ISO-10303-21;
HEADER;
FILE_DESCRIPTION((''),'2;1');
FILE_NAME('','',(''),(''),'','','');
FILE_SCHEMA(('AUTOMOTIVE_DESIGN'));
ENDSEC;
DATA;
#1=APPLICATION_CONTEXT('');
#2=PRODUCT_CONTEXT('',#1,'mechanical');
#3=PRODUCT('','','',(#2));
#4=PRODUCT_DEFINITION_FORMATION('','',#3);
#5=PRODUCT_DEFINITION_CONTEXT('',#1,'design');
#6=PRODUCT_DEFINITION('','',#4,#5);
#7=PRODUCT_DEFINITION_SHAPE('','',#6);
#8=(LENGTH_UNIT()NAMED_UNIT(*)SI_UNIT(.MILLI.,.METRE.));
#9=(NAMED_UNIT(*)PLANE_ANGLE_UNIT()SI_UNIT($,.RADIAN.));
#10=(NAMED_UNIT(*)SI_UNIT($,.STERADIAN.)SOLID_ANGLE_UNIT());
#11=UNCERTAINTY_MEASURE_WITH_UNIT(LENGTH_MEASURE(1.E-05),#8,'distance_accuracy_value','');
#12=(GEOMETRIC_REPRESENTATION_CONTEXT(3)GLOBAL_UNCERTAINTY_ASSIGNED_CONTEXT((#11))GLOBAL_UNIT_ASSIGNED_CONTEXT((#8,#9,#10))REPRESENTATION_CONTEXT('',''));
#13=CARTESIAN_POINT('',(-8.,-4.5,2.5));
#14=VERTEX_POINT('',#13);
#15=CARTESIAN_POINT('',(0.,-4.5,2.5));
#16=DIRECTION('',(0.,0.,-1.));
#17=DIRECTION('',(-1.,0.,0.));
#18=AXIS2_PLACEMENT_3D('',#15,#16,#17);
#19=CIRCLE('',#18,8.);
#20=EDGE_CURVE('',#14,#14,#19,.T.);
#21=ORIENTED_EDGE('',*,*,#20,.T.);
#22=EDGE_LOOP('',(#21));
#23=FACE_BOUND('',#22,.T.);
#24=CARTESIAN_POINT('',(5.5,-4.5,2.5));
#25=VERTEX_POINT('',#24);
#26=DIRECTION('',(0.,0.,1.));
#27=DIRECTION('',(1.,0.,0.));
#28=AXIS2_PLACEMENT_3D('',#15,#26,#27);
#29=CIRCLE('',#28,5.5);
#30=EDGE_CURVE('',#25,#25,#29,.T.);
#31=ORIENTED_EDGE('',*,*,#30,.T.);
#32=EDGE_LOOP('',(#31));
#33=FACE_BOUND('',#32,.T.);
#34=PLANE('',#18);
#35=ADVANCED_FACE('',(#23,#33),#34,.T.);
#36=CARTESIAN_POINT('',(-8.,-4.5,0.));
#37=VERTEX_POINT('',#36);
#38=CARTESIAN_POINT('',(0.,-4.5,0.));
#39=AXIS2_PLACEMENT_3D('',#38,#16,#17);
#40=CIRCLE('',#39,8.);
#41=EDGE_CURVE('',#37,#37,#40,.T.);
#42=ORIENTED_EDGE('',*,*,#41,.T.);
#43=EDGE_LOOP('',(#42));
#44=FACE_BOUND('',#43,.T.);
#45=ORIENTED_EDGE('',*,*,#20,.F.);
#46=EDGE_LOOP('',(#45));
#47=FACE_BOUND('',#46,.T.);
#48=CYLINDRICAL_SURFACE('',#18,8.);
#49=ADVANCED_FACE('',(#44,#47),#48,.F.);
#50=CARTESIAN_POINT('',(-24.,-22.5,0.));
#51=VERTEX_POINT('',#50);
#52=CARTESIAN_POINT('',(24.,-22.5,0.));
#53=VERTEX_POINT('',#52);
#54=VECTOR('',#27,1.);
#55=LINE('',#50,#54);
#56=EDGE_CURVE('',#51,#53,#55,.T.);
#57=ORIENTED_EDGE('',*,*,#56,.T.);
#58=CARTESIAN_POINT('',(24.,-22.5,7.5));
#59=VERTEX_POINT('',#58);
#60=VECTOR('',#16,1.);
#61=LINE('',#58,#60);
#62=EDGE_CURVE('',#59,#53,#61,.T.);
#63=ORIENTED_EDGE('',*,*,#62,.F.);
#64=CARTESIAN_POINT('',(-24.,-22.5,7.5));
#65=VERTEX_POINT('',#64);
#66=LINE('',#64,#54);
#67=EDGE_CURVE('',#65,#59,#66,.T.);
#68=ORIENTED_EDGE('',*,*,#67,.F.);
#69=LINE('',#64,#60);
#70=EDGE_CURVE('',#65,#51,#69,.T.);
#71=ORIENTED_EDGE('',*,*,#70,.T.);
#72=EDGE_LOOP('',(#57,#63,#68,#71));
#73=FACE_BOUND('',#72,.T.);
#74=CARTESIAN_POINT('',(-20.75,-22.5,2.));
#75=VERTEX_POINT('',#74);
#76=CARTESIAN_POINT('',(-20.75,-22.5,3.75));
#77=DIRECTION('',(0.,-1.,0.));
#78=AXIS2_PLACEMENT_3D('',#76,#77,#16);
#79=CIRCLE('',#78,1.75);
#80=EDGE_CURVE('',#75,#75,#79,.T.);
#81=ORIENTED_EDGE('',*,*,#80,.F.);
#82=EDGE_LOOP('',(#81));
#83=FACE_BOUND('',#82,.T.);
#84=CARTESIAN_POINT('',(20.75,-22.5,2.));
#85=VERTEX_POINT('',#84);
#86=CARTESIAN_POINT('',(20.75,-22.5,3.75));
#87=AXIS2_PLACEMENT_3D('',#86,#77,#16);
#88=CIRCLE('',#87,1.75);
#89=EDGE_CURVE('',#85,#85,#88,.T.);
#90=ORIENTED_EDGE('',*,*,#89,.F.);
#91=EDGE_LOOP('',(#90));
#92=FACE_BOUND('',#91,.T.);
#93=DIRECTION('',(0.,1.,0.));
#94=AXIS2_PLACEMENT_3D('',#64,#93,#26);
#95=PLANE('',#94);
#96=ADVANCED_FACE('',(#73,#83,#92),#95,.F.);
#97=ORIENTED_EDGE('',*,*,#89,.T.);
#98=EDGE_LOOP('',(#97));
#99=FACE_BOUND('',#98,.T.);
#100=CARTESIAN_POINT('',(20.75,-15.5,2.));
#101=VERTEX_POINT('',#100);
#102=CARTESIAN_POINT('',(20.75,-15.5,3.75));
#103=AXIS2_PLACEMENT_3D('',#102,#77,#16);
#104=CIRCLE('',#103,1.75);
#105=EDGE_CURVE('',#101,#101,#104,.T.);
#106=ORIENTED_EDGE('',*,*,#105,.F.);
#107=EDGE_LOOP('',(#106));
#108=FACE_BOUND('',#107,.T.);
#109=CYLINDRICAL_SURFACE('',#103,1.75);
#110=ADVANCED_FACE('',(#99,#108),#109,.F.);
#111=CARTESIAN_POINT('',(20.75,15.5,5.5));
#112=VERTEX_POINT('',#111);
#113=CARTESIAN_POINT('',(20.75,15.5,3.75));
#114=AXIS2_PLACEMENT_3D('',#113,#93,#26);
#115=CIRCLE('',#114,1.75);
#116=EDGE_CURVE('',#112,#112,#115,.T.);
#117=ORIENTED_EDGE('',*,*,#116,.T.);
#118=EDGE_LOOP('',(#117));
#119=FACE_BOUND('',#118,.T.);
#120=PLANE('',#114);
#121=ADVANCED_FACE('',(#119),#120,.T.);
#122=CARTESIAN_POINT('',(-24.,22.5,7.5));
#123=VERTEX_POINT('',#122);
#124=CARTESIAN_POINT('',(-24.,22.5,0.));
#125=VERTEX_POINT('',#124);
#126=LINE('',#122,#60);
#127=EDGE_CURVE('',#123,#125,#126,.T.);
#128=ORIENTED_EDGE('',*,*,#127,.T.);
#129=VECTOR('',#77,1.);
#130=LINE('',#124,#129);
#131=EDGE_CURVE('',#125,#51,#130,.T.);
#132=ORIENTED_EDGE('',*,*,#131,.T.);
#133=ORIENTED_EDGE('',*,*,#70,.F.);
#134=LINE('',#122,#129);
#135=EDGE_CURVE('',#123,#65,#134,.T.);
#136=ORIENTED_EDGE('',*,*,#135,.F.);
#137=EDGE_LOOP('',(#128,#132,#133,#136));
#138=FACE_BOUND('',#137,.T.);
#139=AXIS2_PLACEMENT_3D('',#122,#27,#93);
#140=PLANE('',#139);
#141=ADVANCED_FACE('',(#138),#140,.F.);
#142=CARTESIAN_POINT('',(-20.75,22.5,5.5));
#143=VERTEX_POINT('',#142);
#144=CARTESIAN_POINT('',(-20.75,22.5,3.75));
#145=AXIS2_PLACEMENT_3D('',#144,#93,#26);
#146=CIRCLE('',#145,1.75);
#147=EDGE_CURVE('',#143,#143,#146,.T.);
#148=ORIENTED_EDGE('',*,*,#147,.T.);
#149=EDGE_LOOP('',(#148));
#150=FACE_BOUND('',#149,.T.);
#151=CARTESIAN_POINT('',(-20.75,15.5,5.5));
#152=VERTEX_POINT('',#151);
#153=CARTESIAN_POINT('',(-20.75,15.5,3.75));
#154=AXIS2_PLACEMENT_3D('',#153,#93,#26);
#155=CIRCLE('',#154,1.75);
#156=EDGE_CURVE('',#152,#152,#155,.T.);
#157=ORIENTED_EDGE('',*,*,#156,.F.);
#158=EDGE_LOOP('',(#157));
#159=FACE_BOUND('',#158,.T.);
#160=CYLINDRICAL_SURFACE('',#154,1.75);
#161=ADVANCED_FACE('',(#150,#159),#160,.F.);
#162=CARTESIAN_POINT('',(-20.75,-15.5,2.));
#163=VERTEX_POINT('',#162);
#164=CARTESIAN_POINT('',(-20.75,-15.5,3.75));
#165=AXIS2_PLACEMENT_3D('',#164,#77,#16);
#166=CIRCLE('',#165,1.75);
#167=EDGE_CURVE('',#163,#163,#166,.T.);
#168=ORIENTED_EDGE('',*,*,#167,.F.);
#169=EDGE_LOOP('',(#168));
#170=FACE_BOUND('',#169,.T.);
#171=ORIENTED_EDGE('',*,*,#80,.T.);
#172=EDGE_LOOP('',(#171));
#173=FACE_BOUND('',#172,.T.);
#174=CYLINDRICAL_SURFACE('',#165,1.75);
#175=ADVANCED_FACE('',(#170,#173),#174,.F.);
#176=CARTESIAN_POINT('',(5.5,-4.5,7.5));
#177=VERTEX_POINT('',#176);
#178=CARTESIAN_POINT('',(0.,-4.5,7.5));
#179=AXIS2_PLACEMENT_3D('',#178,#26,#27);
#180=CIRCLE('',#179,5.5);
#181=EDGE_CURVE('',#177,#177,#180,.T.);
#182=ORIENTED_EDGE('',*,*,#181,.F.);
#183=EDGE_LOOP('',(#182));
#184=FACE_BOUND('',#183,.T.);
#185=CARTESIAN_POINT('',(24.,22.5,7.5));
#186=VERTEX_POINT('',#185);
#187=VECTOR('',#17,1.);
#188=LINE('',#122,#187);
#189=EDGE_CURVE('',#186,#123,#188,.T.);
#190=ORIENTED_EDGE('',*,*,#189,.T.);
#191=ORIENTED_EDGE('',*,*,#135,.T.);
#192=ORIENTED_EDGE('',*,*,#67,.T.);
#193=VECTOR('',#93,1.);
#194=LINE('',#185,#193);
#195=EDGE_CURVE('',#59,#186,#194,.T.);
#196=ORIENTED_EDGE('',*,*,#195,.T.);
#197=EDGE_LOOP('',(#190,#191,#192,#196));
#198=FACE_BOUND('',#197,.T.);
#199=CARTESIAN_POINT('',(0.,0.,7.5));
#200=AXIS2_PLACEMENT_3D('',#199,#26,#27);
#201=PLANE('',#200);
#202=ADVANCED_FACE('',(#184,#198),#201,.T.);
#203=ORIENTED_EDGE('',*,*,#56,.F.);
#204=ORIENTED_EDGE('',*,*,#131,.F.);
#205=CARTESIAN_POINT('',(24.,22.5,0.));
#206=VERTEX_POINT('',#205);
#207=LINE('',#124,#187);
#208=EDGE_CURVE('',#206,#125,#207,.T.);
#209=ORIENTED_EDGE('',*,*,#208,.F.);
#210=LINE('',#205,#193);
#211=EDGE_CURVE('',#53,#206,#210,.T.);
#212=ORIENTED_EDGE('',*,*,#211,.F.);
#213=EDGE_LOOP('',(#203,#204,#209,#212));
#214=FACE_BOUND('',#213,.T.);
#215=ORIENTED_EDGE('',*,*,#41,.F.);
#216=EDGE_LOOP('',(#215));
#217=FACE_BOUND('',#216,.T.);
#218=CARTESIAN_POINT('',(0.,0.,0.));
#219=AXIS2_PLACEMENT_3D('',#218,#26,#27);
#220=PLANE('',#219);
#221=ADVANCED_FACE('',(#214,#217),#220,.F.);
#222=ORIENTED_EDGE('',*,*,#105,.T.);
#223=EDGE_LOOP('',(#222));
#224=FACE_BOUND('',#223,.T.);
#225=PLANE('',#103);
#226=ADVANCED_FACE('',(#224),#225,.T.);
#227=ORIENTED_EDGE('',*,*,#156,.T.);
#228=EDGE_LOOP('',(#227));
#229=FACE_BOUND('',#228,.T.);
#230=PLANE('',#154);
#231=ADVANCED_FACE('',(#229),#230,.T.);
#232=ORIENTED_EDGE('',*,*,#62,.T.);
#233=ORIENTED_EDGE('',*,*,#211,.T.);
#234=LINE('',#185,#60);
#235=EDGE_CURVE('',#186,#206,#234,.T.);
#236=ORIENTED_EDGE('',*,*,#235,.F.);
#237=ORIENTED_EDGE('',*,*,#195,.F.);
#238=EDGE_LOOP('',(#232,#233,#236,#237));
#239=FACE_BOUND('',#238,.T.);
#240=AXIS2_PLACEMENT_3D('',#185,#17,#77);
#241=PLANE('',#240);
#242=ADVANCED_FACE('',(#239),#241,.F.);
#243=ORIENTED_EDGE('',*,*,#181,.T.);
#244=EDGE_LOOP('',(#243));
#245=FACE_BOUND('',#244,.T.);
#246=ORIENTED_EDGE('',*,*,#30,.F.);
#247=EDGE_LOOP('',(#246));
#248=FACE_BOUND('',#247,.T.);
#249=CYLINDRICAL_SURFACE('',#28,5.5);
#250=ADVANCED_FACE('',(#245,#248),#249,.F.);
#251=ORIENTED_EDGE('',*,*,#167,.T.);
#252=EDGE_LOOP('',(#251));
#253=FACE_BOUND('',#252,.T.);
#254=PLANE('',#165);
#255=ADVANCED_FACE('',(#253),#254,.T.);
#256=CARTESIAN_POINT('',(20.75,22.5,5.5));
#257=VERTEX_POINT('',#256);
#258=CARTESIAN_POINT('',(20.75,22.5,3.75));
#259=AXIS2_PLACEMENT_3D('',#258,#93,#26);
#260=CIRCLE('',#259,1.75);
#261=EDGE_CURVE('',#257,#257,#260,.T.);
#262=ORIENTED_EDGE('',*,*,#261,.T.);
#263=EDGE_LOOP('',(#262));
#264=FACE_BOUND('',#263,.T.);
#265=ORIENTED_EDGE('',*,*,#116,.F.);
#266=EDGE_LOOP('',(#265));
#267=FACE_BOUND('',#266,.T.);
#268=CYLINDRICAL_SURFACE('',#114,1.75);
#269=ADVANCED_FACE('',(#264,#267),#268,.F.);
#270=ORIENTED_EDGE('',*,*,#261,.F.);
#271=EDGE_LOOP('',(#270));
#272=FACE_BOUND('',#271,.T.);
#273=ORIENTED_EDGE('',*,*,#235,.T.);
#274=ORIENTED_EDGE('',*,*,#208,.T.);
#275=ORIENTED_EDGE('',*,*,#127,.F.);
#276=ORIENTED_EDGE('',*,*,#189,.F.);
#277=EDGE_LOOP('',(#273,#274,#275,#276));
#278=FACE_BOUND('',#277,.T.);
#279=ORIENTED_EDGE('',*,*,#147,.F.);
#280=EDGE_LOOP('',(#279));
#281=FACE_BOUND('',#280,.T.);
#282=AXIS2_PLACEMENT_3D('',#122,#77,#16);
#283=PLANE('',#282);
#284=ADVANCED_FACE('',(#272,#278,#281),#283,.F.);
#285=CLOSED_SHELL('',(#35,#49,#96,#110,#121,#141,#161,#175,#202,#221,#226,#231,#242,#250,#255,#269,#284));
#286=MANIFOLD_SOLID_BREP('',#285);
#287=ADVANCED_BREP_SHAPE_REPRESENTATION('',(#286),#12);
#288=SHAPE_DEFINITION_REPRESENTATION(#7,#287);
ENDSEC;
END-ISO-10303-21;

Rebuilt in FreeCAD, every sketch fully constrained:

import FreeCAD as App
import Part
import Sketcher


def add_polygon(sketch, points):
    """Adds a closed chain of lines whose ends are joined by coincident constraints."""
    first, n = sketch.GeometryCount, len(points)
    for a, b in zip(points, points[1:] + points[:1]):
        sketch.addGeometry(Part.LineSegment(App.Vector(*a, 0), App.Vector(*b, 0)), False)
    for i in range(n):
        sketch.addConstraint(Sketcher.Constraint("Coincident", first + i, 2, first + (i + 1) % n, 1))

doc = App.newDocument("Part")
params = doc.addObject("Spreadsheet::Sheet", "Params")
for row, (alias, value) in enumerate([
    ("sketch1_width", "48 mm"),
    ("sketch1_height", "45 mm"),
    ("pad1_length", "7.5 mm"),
    ("sketch2_diameter", "3.5 mm"),
    ("pocket1_length", "7 mm"),
    ("sketch3_diameter", "3.5 mm"),
    ("pocket2_length", "7 mm"),
    ("sketch4_diameter", "11 mm"),
    ("pocket3_length", "5 mm"),
    ("sketch5_diameter", "16 mm"),
    ("pocket4_length", "2.5 mm"),
], start=1):
    params.set(f"A{row}", alias)
    params.set(f"B{row}", "=" + value)
    params.setAlias(f"B{row}", alias)

body = doc.addObject("PartDesign::Body", "Body")

sketch1 = body.newObject("Sketcher::SketchObject", "Sketch")
sketch1.AttachmentSupport = (doc.getObject("XY_Plane"), [""])
sketch1.MapMode = "FlatFace"
add_polygon(sketch1, [(-24, 22), (-24, -22), (24, -22), (24, 22)])
sketch1.addConstraint([
    Sketcher.Constraint("Vertical", 0),
    Sketcher.Constraint("Horizontal", 1),
    Sketcher.Constraint("Vertical", 2),
    Sketcher.Constraint("Horizontal", 3),
    Sketcher.Constraint("Symmetric", 0, 2, 2, 2, -1, 1),
    Sketcher.Constraint("DistanceX", 1, 1, 1, 2, 48.0),
    Sketcher.Constraint("DistanceY", 0, 2, 0, 1, 45.0),
])
sketch1.setExpression("Constraints[9]", "Params.sketch1_width")
sketch1.setExpression("Constraints[10]", "Params.sketch1_height")
pad1 = body.newObject("PartDesign::Pad", "Pad")
pad1.Profile = sketch1
pad1.setExpression("Length", "Params.pad1_length")

sketch2 = body.newObject("Sketcher::SketchObject", "Sketch001")
sketch2.AttachmentSupport = (doc.getObject("XZ_Plane"), [""])
sketch2.MapMode = "FlatFace"
sketch2.AttachmentOffset = App.Placement(App.Vector(0, 0, 22.5), App.Rotation())
sketch2.addGeometry([
    Part.Circle(App.Vector(-20.8, 3.8, 0), App.Vector(0, 0, 1), 1.8),
    Part.Circle(App.Vector(20.8, 3.8, 0), App.Vector(0, 0, 1), 1.8),
], False)
sketch2.addConstraint([
    Sketcher.Constraint("Equal", 0, 1),
    Sketcher.Constraint("Symmetric", 0, 3, 1, 3, -2),
    Sketcher.Constraint("Diameter", 0, 3.5),
    Sketcher.Constraint("DistanceX", 0, 3, 1, 3, 41.5),
    Sketcher.Constraint("DistanceY", -1, 1, 0, 3, 3.75),
])
sketch2.setExpression("Constraints[2]", "Params.sketch2_diameter")
pocket1 = body.newObject("PartDesign::Pocket", "Pocket")
pocket1.Profile = sketch2
pocket1.setExpression("Length", "Params.pocket1_length")

sketch3 = body.newObject("Sketcher::SketchObject", "Sketch002")
sketch3.AttachmentSupport = (doc.getObject("XZ_Plane"), [""])
sketch3.MapMode = "FlatFace"
sketch3.AttachmentOffset = App.Placement(App.Vector(0, 0, -22.5), App.Rotation())
sketch3.addGeometry([
    Part.Circle(App.Vector(-20.8, 3.8, 0), App.Vector(0, 0, 1), 1.8),
    Part.Circle(App.Vector(20.8, 3.8, 0), App.Vector(0, 0, 1), 1.8),
], False)
sketch3.addConstraint([
    Sketcher.Constraint("Equal", 0, 1),
    Sketcher.Constraint("Symmetric", 0, 3, 1, 3, -2),
    Sketcher.Constraint("Diameter", 0, 3.5),
    Sketcher.Constraint("DistanceX", 0, 3, 1, 3, 41.5),
    Sketcher.Constraint("DistanceY", -1, 1, 0, 3, 3.75),
])
sketch3.setExpression("Constraints[2]", "Params.sketch3_diameter")
pocket2 = body.newObject("PartDesign::Pocket", "Pocket001")
pocket2.Profile = sketch3
pocket2.setExpression("Length", "Params.pocket2_length")
pocket2.Reversed = True

sketch4 = body.newObject("Sketcher::SketchObject", "Sketch003")
sketch4.AttachmentSupport = (doc.getObject("XY_Plane"), [""])
sketch4.MapMode = "FlatFace"
sketch4.AttachmentOffset = App.Placement(App.Vector(0, 0, 7.5), App.Rotation())
sketch4.addGeometry(Part.Circle(App.Vector(0, -4, 0), App.Vector(0, 0, 1), 6), False)
sketch4.addConstraint([
    Sketcher.Constraint("PointOnObject", 0, 3, -2),
    Sketcher.Constraint("Diameter", 0, 11.0),
    Sketcher.Constraint("DistanceY", 0, 3, -1, 1, 4.5),
])
sketch4.setExpression("Constraints[1]", "Params.sketch4_diameter")
pocket3 = body.newObject("PartDesign::Pocket", "Pocket002")
pocket3.Profile = sketch4
pocket3.setExpression("Length", "Params.pocket3_length")

sketch5 = body.newObject("Sketcher::SketchObject", "Sketch004")
sketch5.AttachmentSupport = (doc.getObject("XY_Plane"), [""])
sketch5.MapMode = "FlatFace"
sketch5.addGeometry(Part.Circle(App.Vector(0, -4, 0), App.Vector(0, 0, 1), 8), False)
sketch5.addConstraint([
    Sketcher.Constraint("PointOnObject", 0, 3, -2),
    Sketcher.Constraint("Diameter", 0, 16.0),
    Sketcher.Constraint("DistanceY", 0, 3, -1, 1, 4.5),
])
sketch5.setExpression("Constraints[1]", "Params.sketch5_diameter")
pocket4 = body.newObject("PartDesign::Pocket", "Pocket003")
pocket4.Profile = sketch5
pocket4.setExpression("Length", "Params.pocket4_length")
pocket4.Reversed = True

doc.recompute()
